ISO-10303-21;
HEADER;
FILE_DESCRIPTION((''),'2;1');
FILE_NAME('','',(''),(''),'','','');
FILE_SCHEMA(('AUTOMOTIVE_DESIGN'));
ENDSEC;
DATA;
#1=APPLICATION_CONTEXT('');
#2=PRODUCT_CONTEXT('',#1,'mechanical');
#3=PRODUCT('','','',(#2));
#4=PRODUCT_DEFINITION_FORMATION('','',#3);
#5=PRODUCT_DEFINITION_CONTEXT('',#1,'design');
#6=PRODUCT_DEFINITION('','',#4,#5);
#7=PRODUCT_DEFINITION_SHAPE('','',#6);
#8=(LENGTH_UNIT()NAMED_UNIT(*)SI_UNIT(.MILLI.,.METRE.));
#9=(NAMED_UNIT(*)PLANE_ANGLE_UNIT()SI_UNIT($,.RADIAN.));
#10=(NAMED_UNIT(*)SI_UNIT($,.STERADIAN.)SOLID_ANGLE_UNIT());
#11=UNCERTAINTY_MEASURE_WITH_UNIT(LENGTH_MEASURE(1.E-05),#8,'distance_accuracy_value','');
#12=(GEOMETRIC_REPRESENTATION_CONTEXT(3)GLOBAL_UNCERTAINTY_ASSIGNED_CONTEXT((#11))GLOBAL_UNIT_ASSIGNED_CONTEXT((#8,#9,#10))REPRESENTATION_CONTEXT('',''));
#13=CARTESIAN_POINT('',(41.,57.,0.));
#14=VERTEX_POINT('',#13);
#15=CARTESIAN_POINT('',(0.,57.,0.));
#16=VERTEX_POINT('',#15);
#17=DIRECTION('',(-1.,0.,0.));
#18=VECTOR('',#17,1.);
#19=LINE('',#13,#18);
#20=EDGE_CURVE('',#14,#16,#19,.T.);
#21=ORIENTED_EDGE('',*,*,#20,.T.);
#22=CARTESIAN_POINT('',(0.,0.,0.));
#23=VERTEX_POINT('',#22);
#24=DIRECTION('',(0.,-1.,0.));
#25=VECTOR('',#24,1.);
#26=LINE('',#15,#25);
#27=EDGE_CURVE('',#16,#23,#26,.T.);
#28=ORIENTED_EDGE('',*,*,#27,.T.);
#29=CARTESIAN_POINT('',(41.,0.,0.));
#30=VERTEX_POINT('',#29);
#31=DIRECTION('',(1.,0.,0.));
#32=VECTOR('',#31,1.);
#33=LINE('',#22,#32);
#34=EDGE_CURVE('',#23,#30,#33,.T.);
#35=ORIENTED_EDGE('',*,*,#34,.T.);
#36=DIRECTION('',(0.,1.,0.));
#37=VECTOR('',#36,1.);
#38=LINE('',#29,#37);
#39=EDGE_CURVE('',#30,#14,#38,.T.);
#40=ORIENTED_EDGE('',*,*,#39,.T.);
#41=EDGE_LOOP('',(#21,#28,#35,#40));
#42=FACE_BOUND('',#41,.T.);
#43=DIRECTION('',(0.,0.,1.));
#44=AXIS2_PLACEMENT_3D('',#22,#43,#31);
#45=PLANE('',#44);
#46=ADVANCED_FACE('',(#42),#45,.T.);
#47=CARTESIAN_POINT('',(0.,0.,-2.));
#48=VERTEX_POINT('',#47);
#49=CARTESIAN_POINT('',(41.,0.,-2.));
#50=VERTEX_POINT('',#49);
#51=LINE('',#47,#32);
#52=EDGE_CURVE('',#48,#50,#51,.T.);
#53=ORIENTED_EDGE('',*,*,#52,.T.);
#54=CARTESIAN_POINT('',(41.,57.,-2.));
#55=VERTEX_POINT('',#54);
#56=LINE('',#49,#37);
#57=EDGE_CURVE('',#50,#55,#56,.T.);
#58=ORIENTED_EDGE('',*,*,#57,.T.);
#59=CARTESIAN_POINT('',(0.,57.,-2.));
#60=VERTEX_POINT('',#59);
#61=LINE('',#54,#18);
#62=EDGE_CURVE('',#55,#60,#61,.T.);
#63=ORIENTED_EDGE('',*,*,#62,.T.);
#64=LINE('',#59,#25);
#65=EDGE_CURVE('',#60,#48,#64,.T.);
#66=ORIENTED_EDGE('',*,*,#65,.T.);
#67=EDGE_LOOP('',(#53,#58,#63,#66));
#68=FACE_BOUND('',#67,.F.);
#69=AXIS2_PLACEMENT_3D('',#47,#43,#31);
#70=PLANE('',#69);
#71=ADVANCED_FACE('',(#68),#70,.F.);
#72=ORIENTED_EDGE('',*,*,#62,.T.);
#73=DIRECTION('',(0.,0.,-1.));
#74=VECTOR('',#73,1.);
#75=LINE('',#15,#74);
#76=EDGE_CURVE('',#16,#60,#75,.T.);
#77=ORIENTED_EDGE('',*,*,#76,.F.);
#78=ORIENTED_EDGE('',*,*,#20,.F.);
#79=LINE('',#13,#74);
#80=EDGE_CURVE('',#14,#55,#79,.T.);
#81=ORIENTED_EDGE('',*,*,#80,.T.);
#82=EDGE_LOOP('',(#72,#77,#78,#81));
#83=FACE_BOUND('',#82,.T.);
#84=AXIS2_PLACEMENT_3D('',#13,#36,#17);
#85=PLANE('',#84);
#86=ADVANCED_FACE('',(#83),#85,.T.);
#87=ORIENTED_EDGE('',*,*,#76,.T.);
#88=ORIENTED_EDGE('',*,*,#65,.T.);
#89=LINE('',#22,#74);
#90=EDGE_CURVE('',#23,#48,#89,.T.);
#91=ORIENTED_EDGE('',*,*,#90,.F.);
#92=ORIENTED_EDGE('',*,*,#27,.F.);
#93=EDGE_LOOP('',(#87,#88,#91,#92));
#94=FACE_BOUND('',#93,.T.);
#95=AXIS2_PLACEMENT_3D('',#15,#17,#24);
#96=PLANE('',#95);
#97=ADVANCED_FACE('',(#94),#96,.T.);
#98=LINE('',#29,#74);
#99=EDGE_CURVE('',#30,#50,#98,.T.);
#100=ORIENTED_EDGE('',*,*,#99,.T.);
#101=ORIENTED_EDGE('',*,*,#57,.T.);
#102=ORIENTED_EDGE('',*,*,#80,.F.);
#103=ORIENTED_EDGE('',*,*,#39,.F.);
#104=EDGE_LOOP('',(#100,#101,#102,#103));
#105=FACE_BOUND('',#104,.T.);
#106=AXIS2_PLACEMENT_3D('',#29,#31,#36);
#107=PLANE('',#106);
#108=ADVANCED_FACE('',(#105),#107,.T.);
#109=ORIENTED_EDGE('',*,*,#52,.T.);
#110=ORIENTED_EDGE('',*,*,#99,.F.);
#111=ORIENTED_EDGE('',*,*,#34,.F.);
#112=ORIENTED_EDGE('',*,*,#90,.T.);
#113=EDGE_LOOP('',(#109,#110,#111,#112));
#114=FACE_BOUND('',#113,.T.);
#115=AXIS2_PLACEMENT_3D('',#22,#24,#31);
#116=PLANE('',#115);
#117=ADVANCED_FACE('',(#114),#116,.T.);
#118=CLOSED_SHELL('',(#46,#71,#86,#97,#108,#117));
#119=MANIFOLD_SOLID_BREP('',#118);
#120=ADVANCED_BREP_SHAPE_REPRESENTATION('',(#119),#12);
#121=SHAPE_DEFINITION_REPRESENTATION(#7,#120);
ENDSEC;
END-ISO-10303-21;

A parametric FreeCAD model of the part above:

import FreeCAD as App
import Part
import Sketcher
Q = App.Units.Quantity


def add_polygon(sketch, points):
    """Adds a closed chain of lines whose ends are joined by coincident constraints."""
    first, n = sketch.GeometryCount, len(points)
    for a, b in zip(points, points[1:] + points[:1]):
        sketch.addGeometry(Part.LineSegment(App.Vector(*a, 0), App.Vector(*b, 0)), False)
    for i in range(n):
        sketch.addConstraint(Sketcher.Constraint("Coincident", first + i, 2, first + (i + 1) % n, 1))

doc = App.newDocument("Part")
body = doc.addObject("PartDesign::Body", "Body")

sketch1 = doc.addObject("Sketcher::SketchObject", "Sketch")
body.addObject(sketch1)
sketch1.AttachmentSupport = (doc.XY_Plane, [""])
sketch1.MapMode = "FlatFace"
add_polygon(sketch1, [(0, 57), (0, 0), (41, 0), (41, 57)])
sketch1.addConstraint([
    Sketcher.Constraint("Vertical", 0),
    Sketcher.Constraint("Horizontal", 1),
    Sketcher.Constraint("Vertical", 2),
    Sketcher.Constraint("Horizontal", 3),
    Sketcher.Constraint("Coincident", 0, 2, -1, 1),
    Sketcher.Constraint("DistanceX", 1, 1, 1, 2, Q("41 mm")),
    Sketcher.Constraint("DistanceY", 0, 2, 0, 1, Q("57 mm")),
])
pad1 = doc.addObject("PartDesign::Pad", "Pad")
body.addObject(pad1)
pad1.Profile = sketch1
pad1.Length = 2
pad1.Reversed = True

doc.recompute()
